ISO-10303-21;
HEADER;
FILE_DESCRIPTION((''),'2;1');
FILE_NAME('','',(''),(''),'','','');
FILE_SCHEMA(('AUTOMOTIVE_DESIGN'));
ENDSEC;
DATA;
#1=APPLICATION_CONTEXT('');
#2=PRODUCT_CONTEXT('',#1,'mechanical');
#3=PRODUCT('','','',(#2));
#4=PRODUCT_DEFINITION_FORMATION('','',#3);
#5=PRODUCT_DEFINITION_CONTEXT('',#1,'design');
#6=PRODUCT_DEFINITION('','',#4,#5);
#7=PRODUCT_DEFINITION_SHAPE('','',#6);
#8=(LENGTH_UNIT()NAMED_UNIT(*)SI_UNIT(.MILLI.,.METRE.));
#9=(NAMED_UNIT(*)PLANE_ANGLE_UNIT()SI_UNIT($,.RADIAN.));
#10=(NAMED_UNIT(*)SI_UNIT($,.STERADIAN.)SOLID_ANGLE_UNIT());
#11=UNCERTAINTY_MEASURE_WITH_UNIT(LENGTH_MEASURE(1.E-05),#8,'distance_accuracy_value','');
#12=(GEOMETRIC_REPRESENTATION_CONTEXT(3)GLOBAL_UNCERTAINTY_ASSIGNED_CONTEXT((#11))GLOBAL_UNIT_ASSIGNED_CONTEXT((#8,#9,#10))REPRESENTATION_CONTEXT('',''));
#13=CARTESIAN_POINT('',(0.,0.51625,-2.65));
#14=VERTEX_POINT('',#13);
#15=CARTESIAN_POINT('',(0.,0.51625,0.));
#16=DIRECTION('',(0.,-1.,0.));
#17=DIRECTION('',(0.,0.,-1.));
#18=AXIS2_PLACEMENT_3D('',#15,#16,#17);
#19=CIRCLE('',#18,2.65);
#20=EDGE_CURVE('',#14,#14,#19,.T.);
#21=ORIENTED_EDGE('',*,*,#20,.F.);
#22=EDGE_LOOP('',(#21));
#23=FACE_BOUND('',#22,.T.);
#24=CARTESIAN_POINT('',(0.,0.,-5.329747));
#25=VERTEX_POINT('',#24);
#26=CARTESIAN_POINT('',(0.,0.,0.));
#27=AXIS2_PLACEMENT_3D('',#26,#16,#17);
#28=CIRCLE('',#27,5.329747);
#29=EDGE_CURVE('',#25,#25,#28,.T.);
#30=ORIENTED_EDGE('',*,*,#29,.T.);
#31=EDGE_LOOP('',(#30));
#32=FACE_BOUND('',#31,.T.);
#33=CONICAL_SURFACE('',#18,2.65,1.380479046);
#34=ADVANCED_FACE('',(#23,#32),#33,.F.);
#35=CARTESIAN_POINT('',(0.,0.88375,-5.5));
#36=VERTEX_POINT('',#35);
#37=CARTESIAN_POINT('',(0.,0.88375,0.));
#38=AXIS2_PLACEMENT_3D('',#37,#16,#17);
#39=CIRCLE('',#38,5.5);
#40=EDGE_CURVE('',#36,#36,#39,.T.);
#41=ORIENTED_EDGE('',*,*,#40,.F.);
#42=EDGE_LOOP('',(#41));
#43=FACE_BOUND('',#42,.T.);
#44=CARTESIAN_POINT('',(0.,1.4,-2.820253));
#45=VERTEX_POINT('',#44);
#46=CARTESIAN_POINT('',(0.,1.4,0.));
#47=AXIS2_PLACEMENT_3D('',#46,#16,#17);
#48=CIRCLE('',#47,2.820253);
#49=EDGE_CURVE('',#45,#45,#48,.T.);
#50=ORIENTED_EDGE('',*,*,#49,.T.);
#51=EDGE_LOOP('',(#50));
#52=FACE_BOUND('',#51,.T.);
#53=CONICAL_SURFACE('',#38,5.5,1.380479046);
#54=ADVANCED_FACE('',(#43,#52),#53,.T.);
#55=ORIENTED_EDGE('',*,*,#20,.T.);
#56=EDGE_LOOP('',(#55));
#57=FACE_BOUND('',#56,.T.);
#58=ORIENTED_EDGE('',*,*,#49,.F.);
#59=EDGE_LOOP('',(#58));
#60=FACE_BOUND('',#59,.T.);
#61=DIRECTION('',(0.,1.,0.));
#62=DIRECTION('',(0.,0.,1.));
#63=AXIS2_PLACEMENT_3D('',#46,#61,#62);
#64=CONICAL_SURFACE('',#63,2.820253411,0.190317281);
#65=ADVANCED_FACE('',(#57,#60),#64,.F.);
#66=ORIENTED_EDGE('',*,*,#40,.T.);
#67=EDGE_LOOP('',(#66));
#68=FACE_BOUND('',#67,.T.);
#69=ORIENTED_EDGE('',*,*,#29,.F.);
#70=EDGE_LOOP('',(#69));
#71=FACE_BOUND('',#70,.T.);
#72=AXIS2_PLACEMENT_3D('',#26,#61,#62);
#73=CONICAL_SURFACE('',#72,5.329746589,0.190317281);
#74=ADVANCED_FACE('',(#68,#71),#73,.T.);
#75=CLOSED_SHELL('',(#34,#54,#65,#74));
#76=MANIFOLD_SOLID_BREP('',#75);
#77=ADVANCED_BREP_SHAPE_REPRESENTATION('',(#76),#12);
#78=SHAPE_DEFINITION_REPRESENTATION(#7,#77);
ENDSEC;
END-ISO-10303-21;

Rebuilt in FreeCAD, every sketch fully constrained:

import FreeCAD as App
import Part
import Sketcher


def add_polygon(sketch, points):
    """Adds a closed chain of lines whose ends are joined by coincident constraints."""
    first, n = sketch.GeometryCount, len(points)
    for a, b in zip(points, points[1:] + points[:1]):
        sketch.addGeometry(Part.LineSegment(App.Vector(*a, 0), App.Vector(*b, 0)), False)
    for i in range(n):
        sketch.addConstraint(Sketcher.Constraint("Coincident", first + i, 2, first + (i + 1) % n, 1))

doc = App.newDocument("Part")
body = doc.addObject("PartDesign::Body", "Body")

sketch1 = body.newObject("Sketcher::SketchObject", "Sketch")
sketch1.AttachmentSupport = (doc.getObject("XY_Plane"), [""])
sketch1.MapMode = "FlatFace"
add_polygon(sketch1, [(2.6, 0.5), (5.3, 0), (5.5, 0.9), (2.8, 1.4)])
sketch1.addConstraint(Sketcher.Constraint("PointOnObject", 0, 2, -1))
sketch1.addConstraint(Sketcher.Constraint("Perpendicular", 0, 1))
sketch1.addConstraint(Sketcher.Constraint("Perpendicular", 1, 2))
sketch1.addConstraint(Sketcher.Constraint("Perpendicular", 2, 3))
sketch1.addConstraint(Sketcher.Constraint("Distance", 1, 0.9))
sketch1.addConstraint(Sketcher.Constraint("DistanceX", -1, 1, 1, 2, 5.5))
sketch1.addConstraint(Sketcher.Constraint("DistanceY", -1, 1, 2, 2, 1.4))
sketch1.addConstraint(Sketcher.Constraint("DistanceX", -1, 1, 3, 2, 2.65))
revolution = body.newObject("PartDesign::Revolution", "Revolution")
revolution.Profile = sketch1
revolution.ReferenceAxis = (sketch1, ["V_Axis"])
revolution.Angle = 360

doc.recompute()
